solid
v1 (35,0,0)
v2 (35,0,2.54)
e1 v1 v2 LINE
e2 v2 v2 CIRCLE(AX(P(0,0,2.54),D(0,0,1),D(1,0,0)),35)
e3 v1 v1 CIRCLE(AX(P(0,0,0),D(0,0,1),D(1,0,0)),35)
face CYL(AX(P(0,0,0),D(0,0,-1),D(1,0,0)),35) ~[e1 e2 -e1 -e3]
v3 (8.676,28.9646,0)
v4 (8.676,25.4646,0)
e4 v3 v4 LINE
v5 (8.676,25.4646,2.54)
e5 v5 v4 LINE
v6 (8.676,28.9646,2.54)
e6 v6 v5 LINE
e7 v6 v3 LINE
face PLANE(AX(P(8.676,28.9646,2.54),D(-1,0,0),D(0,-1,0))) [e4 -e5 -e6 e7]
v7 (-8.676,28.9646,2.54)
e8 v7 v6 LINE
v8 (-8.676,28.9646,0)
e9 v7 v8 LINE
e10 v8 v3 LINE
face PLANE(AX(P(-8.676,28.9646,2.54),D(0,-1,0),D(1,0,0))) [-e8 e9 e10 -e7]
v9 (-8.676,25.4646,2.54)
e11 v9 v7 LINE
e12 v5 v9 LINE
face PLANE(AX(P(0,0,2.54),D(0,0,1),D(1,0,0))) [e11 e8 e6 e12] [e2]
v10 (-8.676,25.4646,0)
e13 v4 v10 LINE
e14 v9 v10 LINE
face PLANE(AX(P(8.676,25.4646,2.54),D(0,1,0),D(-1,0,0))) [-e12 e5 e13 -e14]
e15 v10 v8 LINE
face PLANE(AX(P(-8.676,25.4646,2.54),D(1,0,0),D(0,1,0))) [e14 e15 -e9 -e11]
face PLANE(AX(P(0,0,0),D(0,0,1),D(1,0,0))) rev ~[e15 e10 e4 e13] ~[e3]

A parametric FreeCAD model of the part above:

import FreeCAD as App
import Part
import Sketcher

V = App.Vector
Q = App.Units.Quantity


def add_polygon(sketch, points):
    """Adds a closed chain of lines whose ends are joined by coincident constraints."""
    first, n = sketch.GeometryCount, len(points)
    for a, b in zip(points, points[1:] + points[:1]):
        sketch.addGeometry(Part.LineSegment(App.Vector(*a, 0), App.Vector(*b, 0)), False)
    for i in range(n):
        sketch.addConstraint(Sketcher.Constraint("Coincident", first + i, 2, first + (i + 1) % n, 1))

doc = App.newDocument("Part")
body = doc.addObject("PartDesign::Body", "Body")

sketch1 = body.newObject("Sketcher::SketchObject", "Sketch")
sketch1.AttachmentSupport = (doc.getObject("XY_Plane"), [""])
sketch1.MapMode = "FlatFace"
sketch1.addGeometry(Part.Circle(V(0, 0, 0), V(0, 0, 1), 35), False)
sketch1.addConstraint([
    Sketcher.Constraint("Coincident", 0, 3, -1, 1),
    Sketcher.Constraint("Diameter", 0, Q("2.7559 in")),
])
pad1 = body.newObject("PartDesign::Pad", "Pad")
pad1.Profile = sketch1
pad1.Length = Q("0.1 in")

sketch2 = body.newObject("Sketcher::SketchObject", "Sketch001")
sketch2.AttachmentSupport = (doc.getObject("XY_Plane"), [""])
sketch2.MapMode = "FlatFace"
sketch2.AttachmentOffset = App.Placement(V(0, 0, 0.1 * 25.4), App.Rotation())
add_polygon(sketch2, [(8.7, 29), (-8.7, 29), (-8.7, 25.5), (8.7, 25.5)])
sketch2.addConstraint([
    Sketcher.Constraint("Horizontal", 0),
    Sketcher.Constraint("Vertical", 1),
    Sketcher.Constraint("Horizontal", 2),
    Sketcher.Constraint("Vertical", 3),
    Sketcher.Constraint("DistanceY", 1, 2, 1, 1, Q("0.1378 in")),
    Sketcher.Constraint("DistanceX", 0, 2, 0, 1, 17.352),
    Sketcher.Constraint("DistanceX", 0, 2, -1, 1, 8.676),
    Sketcher.Constraint("DistanceY", -1, 1, 0, 2, 28.9646),
])
pocket1 = body.newObject("PartDesign::Pocket", "Pocket")
pocket1.Profile = sketch2
pocket1.Length = Q("0.1 in")

doc.recompute()
